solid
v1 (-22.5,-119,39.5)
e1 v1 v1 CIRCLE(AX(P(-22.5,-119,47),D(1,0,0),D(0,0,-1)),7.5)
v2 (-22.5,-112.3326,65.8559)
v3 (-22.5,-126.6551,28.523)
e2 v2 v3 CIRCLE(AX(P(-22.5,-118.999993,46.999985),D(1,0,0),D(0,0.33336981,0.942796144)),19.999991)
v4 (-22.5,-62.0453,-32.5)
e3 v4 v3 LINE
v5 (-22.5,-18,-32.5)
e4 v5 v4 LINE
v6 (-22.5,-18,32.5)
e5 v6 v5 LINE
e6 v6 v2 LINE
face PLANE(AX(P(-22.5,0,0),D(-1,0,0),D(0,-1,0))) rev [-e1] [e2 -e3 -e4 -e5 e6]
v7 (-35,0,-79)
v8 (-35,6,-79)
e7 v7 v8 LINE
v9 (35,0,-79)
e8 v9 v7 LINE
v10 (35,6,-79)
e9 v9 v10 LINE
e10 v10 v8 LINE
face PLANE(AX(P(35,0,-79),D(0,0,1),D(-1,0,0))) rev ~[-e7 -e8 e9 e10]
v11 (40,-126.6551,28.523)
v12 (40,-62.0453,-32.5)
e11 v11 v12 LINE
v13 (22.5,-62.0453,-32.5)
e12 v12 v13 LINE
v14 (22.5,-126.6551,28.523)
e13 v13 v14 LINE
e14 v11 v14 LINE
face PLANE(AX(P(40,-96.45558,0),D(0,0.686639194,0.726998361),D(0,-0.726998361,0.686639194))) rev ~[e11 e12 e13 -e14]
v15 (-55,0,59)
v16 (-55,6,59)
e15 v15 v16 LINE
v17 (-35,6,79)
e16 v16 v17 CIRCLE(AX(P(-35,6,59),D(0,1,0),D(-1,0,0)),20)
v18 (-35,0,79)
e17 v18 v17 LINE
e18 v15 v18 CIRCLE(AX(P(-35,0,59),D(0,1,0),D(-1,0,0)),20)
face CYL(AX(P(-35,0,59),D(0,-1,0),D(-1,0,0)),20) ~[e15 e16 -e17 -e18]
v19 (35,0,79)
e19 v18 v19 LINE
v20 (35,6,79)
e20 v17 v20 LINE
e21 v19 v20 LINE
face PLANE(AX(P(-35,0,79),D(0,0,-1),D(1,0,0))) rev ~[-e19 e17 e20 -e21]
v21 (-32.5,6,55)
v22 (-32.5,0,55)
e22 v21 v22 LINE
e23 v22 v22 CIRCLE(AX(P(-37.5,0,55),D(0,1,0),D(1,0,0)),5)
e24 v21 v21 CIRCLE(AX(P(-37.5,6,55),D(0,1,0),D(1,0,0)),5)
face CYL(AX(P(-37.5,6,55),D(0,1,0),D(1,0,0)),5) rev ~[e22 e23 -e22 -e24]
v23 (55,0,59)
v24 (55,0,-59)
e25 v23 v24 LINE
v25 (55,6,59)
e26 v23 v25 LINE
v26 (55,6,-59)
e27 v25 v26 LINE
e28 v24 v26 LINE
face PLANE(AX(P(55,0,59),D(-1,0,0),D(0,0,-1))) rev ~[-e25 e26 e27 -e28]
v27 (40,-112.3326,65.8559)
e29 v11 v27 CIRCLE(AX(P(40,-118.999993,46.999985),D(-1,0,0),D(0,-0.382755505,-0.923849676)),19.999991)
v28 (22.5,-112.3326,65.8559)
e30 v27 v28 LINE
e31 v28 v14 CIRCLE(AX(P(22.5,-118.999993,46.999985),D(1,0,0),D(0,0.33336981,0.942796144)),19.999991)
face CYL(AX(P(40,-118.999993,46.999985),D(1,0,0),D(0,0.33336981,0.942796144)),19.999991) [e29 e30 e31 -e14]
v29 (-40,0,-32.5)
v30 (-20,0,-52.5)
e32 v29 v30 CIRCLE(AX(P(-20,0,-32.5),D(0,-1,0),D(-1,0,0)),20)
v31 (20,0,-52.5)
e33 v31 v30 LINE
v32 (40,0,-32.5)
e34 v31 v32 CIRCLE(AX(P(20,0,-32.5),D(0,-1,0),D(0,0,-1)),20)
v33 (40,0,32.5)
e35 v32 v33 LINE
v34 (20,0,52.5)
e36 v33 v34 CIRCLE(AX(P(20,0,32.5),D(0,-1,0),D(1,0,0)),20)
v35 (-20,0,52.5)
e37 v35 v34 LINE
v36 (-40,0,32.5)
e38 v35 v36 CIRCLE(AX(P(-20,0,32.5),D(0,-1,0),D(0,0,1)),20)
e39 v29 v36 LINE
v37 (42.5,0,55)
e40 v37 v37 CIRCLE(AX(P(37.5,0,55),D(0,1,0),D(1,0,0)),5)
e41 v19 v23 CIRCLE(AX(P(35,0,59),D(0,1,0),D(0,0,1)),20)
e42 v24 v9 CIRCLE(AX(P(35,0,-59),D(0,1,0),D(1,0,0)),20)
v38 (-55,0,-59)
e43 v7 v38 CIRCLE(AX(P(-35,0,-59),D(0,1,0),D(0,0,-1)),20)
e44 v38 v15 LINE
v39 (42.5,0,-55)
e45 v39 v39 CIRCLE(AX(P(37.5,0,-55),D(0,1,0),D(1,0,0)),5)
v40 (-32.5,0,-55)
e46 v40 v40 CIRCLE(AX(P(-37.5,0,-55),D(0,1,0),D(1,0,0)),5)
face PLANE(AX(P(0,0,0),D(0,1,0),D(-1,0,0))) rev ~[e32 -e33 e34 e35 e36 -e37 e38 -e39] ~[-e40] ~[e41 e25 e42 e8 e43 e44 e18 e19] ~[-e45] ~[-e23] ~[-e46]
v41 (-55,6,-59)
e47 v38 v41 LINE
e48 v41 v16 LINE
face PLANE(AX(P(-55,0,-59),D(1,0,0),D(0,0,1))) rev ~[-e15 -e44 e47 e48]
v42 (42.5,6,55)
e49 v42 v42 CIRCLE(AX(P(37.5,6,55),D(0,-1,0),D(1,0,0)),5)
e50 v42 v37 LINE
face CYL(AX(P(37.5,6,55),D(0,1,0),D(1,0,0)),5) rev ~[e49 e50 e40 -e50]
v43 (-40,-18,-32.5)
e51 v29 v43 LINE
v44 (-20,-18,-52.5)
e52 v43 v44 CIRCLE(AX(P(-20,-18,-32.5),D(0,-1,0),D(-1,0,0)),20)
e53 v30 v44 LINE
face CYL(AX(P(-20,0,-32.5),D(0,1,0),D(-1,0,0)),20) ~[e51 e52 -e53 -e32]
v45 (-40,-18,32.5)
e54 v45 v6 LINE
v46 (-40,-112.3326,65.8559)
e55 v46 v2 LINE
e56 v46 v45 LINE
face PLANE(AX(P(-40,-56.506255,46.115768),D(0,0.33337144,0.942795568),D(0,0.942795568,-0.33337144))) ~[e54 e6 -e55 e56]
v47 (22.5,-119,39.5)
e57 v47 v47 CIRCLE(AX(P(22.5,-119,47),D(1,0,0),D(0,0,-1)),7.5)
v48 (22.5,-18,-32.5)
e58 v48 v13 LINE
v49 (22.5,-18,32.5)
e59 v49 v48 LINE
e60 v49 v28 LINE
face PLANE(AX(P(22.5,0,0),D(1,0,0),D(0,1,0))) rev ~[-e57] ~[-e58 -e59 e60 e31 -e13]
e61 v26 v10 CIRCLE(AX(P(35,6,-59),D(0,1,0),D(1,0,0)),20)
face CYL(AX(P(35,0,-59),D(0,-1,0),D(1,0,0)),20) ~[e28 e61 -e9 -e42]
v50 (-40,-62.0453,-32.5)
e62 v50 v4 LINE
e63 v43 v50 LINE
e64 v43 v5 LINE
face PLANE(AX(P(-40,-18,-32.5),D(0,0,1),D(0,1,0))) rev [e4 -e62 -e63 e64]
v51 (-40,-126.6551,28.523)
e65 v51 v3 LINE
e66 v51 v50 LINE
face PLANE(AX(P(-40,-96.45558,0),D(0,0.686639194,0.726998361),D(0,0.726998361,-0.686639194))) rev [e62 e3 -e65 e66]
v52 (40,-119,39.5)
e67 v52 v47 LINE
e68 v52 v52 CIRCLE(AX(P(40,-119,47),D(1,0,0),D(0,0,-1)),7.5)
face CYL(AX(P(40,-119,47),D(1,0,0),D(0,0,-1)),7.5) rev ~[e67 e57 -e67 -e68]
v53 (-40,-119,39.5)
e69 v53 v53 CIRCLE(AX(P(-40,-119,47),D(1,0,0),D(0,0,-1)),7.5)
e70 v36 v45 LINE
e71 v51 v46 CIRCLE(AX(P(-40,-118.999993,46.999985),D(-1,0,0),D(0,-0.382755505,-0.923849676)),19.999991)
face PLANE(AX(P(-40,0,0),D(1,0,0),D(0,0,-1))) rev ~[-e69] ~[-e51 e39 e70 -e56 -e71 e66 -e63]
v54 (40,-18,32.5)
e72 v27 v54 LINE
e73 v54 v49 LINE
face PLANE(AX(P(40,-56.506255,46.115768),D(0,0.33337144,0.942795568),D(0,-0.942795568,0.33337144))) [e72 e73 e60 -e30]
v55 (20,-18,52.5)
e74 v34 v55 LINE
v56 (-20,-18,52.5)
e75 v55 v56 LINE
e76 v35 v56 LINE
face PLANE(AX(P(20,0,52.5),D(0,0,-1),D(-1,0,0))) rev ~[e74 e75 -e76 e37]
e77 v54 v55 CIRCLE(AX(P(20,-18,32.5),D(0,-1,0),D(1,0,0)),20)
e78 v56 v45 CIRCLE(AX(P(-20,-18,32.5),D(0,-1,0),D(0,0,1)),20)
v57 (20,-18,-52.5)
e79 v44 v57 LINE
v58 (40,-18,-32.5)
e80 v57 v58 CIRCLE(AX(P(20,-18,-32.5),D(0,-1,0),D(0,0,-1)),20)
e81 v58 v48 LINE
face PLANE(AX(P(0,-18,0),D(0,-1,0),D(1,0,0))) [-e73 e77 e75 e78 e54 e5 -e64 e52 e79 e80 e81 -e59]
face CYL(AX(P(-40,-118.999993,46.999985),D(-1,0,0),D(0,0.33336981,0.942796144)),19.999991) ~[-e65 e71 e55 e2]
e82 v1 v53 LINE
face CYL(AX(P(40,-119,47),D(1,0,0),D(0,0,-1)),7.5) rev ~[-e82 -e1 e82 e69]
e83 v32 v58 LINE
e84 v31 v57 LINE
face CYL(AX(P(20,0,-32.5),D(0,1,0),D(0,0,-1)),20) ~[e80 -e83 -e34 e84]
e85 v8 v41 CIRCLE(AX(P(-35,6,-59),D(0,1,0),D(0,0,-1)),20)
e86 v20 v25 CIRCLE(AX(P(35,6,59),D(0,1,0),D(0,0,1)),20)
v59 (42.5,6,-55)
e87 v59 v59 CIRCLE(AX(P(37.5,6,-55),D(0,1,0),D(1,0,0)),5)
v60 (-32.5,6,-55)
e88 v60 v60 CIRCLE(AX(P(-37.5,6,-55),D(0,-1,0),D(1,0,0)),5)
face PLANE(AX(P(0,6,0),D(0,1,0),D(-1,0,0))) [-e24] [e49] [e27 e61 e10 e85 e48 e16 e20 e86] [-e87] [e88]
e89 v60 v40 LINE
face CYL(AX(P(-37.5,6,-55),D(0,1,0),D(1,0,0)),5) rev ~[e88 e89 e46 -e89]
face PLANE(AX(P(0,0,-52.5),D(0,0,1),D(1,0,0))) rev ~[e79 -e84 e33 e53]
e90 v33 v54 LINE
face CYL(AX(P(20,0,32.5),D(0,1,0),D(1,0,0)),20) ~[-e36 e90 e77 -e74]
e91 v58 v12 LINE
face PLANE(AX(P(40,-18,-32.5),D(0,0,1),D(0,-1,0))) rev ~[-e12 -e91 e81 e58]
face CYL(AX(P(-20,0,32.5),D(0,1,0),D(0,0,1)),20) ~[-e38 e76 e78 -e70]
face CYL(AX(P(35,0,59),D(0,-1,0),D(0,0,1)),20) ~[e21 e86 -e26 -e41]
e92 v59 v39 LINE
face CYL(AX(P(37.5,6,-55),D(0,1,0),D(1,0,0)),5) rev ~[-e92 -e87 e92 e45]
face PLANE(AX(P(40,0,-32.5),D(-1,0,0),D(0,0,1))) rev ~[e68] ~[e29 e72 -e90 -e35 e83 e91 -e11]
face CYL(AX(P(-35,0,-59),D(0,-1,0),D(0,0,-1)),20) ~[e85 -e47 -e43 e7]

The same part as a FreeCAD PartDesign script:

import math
import FreeCAD as App
import Part
import Sketcher
Q = App.Units.Quantity

doc = App.newDocument("Part")
params = doc.addObject("Spreadsheet::Sheet", "Params")
for row, (alias, value) in enumerate([
    ("sketch1_radius", "20 mm"),
    ("sketch1_height", "118 mm"),
    ("pad1_length", "6 mm"),
    ("sketch2_radius", "20 mm"),
    ("sketch2_width", "40 mm"),
    ("pad2_length", "18 mm"),
    ("sketch3_diameter", "10 mm"),
    ("pocket1_length", "6 mm"),
    ("sketch4_radius", "20 mm"),
    ("sketch4_height", "65 mm"),
    ("pad3_length", "17.5 mm"),
    ("sketch5_diameter", "15 mm"),
], start=1):
    params.set(f"A{row}", alias)
    params.set(f"B{row}", "=" + value)
    params.setAlias(f"B{row}", alias)

body = doc.addObject("PartDesign::Body", "Body")

# Sketch on XZ plane
sketch1 = doc.addObject("Sketcher::SketchObject", "Sketch")
body.addObject(sketch1)
sketch1.AttachmentSupport = (doc.XZ_Plane, [""])
sketch1.MapMode = "FlatFace"
sketch1.addGeometry([
    Part.ArcOfCircle(Part.Circle(App.Vector(35, -59, 0), App.Vector(0, 0, 1), 20), math.radians(-90), math.radians(0)),  # 0
    Part.LineSegment(App.Vector(35, -79, 0), App.Vector(-35, -79, 0)),  # 1
    Part.ArcOfCircle(Part.Circle(App.Vector(-35, -59, 0), App.Vector(0, 0, 1), 20), math.radians(180), math.radians(270)),  # 2
    Part.LineSegment(App.Vector(-55, -59, 0), App.Vector(-55, 59, 0)),  # 3
    Part.ArcOfCircle(Part.Circle(App.Vector(-35, 59, 0), App.Vector(0, 0, 1), 20), math.radians(90), math.radians(180)),  # 4
    Part.LineSegment(App.Vector(-35, 79, 0), App.Vector(35, 79, 0)),  # 5
    Part.ArcOfCircle(Part.Circle(App.Vector(35, 59, 0), App.Vector(0, 0, 1), 20), math.radians(0), math.radians(90)),  # 6
    Part.LineSegment(App.Vector(55, 59, 0), App.Vector(55, -59, 0)),  # 7
], False)
sketch1.addConstraint([
    Sketcher.Constraint("Tangent", 0, 1, 1, 1),
    Sketcher.Constraint("Tangent", 1, 2, 2, 2),
    Sketcher.Constraint("Tangent", 2, 1, 3, 1),
    Sketcher.Constraint("Tangent", 3, 2, 4, 2),
    Sketcher.Constraint("Tangent", 4, 1, 5, 1),
    Sketcher.Constraint("Tangent", 5, 2, 6, 2),
    Sketcher.Constraint("Tangent", 6, 1, 7, 1),
    Sketcher.Constraint("Tangent", 7, 2, 0, 2),
    Sketcher.Constraint("Horizontal", 1),
    Sketcher.Constraint("Vertical", 3),
    Sketcher.Constraint("Horizontal", 5),
    Sketcher.Constraint("Vertical", 7),
    Sketcher.Constraint("Equal", 0, 2),
    Sketcher.Constraint("Equal", 2, 4),
    Sketcher.Constraint("Equal", 4, 6),
    Sketcher.Constraint("Symmetric", 0, 3, 4, 3, -1, 1),
    Sketcher.Constraint("Radius", 0, Q("20 mm")),
    Sketcher.Constraint("DistanceX", 3, 2, 6, 1, Q("110 mm")),
    Sketcher.Constraint("DistanceY", 3, 1, 3, 2, Q("118 mm")),
])
sketch1.setExpression("Constraints[16]", "Params.sketch1_radius")
sketch1.setExpression("Constraints[18]", "Params.sketch1_height")
pad1 = doc.addObject("PartDesign::Pad", "Pad")
body.addObject(pad1)
pad1.Profile = sketch1
pad1.setExpression("Length", "Params.pad1_length")
pad1.Reversed = True

# Sketch on XZ plane
sketch2 = doc.addObject("Sketcher::SketchObject", "Sketch001")
body.addObject(sketch2)
sketch2.AttachmentSupport = (doc.XZ_Plane, [""])
sketch2.MapMode = "FlatFace"
sketch2.addGeometry([
    Part.LineSegment(App.Vector(40, -32.5, 0), App.Vector(40, 32.5, 0)),  # 0
    Part.ArcOfCircle(Part.Circle(App.Vector(20, 32.5, 0), App.Vector(0, 0, 1), 20), math.radians(0), math.radians(90)),  # 1
    Part.LineSegment(App.Vector(20, 52.5, 0), App.Vector(-20, 52.5, 0)),  # 2
    Part.ArcOfCircle(Part.Circle(App.Vector(-20, 32.5, 0), App.Vector(0, 0, 1), 20), math.radians(90), math.radians(180)),  # 3
    Part.LineSegment(App.Vector(-40, 32.5, 0), App.Vector(-40, -32.5, 0)),  # 4
    Part.ArcOfCircle(Part.Circle(App.Vector(-20, -32.5, 0), App.Vector(0, 0, 1), 20), math.radians(180), math.radians(270)),  # 5
    Part.LineSegment(App.Vector(-20, -52.5, 0), App.Vector(20, -52.5, 0)),  # 6
    Part.ArcOfCircle(Part.Circle(App.Vector(20, -32.5, 0), App.Vector(0, 0, 1), 20), math.radians(-90), math.radians(0)),  # 7
], False)
sketch2.addConstraint([
    Sketcher.Constraint("Tangent", 0, 2, 1, 1),
    Sketcher.Constraint("Tangent", 1, 2, 2, 1),
    Sketcher.Constraint("Tangent", 2, 2, 3, 1),
    Sketcher.Constraint("Tangent", 3, 2, 4, 1),
    Sketcher.Constraint("Tangent", 4, 2, 5, 1),
    Sketcher.Constraint("Tangent", 5, 2, 6, 1),
    Sketcher.Constraint("Tangent", 6, 2, 7, 1),
    Sketcher.Constraint("Tangent", 7, 2, 0, 1),
    Sketcher.Constraint("Vertical", 0),
    Sketcher.Constraint("Horizontal", 2),
    Sketcher.Constraint("Vertical", 4),
    Sketcher.Constraint("Horizontal", 6),
    Sketcher.Constraint("Equal", 1, 3),
    Sketcher.Constraint("Equal", 3, 5),
    Sketcher.Constraint("Equal", 5, 7),
    Sketcher.Constraint("Symmetric", 1, 3, 5, 3, -1, 1),
    Sketcher.Constraint("Radius", 1, Q("20 mm")),
    Sketcher.Constraint("DistanceX", 2, 2, 2, 1, Q("40 mm")),
    Sketcher.Constraint("DistanceY", -1, 1, 1, 2, Q("52.5 mm")),
])
sketch2.setExpression("Constraints[16]", "Params.sketch2_radius")
sketch2.setExpression("Constraints[17]", "Params.sketch2_width")
pad2 = doc.addObject("PartDesign::Pad", "Pad001")
body.addObject(pad2)
pad2.Profile = sketch2
pad2.setExpression("Length", "Params.pad2_length")

# Sketch on XZ plane
sketch3 = doc.addObject("Sketcher::SketchObject", "Sketch002")
body.addObject(sketch3)
sketch3.AttachmentSupport = (doc.XZ_Plane, [""])
sketch3.MapMode = "FlatFace"
sketch3.AttachmentOffset = App.Placement(App.Vector(0, 0, -6), App.Rotation())
sketch3.addGeometry([
    Part.Circle(App.Vector(-37.5, 55, 0), App.Vector(0, 0, 1), 5),
    Part.Circle(App.Vector(37.5, 55, 0), App.Vector(0, 0, 1), 5),
    Part.Circle(App.Vector(-37.5, -55, 0), App.Vector(0, 0, 1), 5),
    Part.Circle(App.Vector(37.5, -55, 0), App.Vector(0, 0, 1), 5),
], False)
sketch3.addConstraint([
    Sketcher.Constraint("Equal", 0, 1),
    Sketcher.Constraint("Equal", 1, 2),
    Sketcher.Constraint("Equal", 2, 3),
    Sketcher.Constraint("Symmetric", 1, 3, 2, 3, -1, 1),
    Sketcher.Constraint("Symmetric", 0, 3, 3, 3, -1, 1),
    Sketcher.Constraint("Symmetric", 0, 3, 1, 3, -2),
    Sketcher.Constraint("Diameter", 0, Q("10 mm")),
    Sketcher.Constraint("DistanceY", -1, 1, 0, 3, Q("55 mm")),
    Sketcher.Constraint("DistanceX", 0, 3, -1, 1, Q("37.5 mm")),
])
sketch3.setExpression("Constraints[6]", "Params.sketch3_diameter")
pocket1 = doc.addObject("PartDesign::Pocket", "Pocket")
body.addObject(pocket1)
pocket1.Profile = sketch3
pocket1.setExpression("Length", "Params.pocket1_length")
pocket1.Reversed = True

# Sketch on YZ plane
sketch4 = doc.addObject("Sketcher::SketchObject", "Sketch003")
body.addObject(sketch4)
sketch4.AttachmentSupport = (doc.YZ_Plane, [""])
sketch4.MapMode = "FlatFace"
sketch4.AttachmentOffset = App.Placement(App.Vector(0, 0, 40), App.Rotation())
sketch4.addGeometry([
    Part.ArcOfCircle(Part.Circle(App.Vector(-119, 47, 0), App.Vector(0, 0, 1), 19.99998), math.radians(70.52653), math.radians(247.495564)),  # 0
    Part.LineSegment(App.Vector(-126.6551, 28.523, 0), App.Vector(-62.0453, -32.5, 0)),  # 1
    Part.LineSegment(App.Vector(-62.0453, -32.5, 0), App.Vector(-18, -32.5, 0)),  # 2
    Part.LineSegment(App.Vector(-18, -32.5, 0), App.Vector(-18, 32.5, 0)),  # 3
    Part.LineSegment(App.Vector(-18, 32.5, 0), App.Vector(-112.3326, 65.8559, 0)),  # 4
], False)
sketch4.addConstraint([
    Sketcher.Constraint("Coincident", 0, 2, 1, 1),
    Sketcher.Constraint("Coincident", 1, 2, 2, 1),
    Sketcher.Constraint("Coincident", 2, 2, 3, 1),
    Sketcher.Constraint("Coincident", 3, 2, 4, 1),
    Sketcher.Constraint("Tangent", 4, 2, 0, 1),
    Sketcher.Constraint("Horizontal", 2),
    Sketcher.Constraint("Vertical", 3),
    Sketcher.Constraint("Radius", 0, Q("20 mm")),
    Sketcher.Constraint("DistanceY", -1, 1, 0, 3, Q("47 mm")),
    Sketcher.Constraint("DistanceY", 3, 1, 3, 2, Q("65 mm")),
    Sketcher.Constraint("DistanceX", 0, 3, -1, 1, Q("119 mm")),
    Sketcher.Constraint("DistanceX", 2, 2, -1, 1, Q("18 mm")),
    Sketcher.Constraint("DistanceY", 1, 2, -1, 1, Q("32.5 mm")),
    Sketcher.Constraint("Distance", 1, Q("88.872 mm")),
    Sketcher.Constraint("DistanceX", 2, 1, 2, 2, Q("44.0453 mm")),
])
sketch4.setExpression("Constraints[7]", "Params.sketch4_radius")
sketch4.setExpression("Constraints[9]", "Params.sketch4_height")
pad3 = doc.addObject("PartDesign::Pad", "Pad002")
body.addObject(pad3)
pad3.Profile = sketch4
pad3.setExpression("Length", "Params.pad3_length")
pad3.Reversed = True
doc.recompute()

mirrored = doc.addObject("PartDesign::Mirrored", "Mirrored")
body.addObject(mirrored)
mirrored.Originals = [pad3]
mirrored.MirrorPlane = (doc.YZ_Plane, [""])
body.Tip = mirrored

# Sketch on YZ plane
sketch5 = doc.addObject("Sketcher::SketchObject", "Sketch004")
body.addObject(sketch5)
sketch5.AttachmentSupport = (doc.YZ_Plane, [""])
sketch5.MapMode = "FlatFace"
sketch5.AttachmentOffset = App.Placement(App.Vector(0, 0, 40), App.Rotation())
sketch5.addGeometry(Part.Circle(App.Vector(-119, 47, 0), App.Vector(0, 0, 1), 7.5), False)
sketch5.addConstraint([
    Sketcher.Constraint("Diameter", 0, Q("15 mm")),
    Sketcher.Constraint("DistanceX", 0, 3, -1, 1, Q("119 mm")),
    Sketcher.Constraint("DistanceY", -1, 1, 0, 3, Q("47 mm")),
])
sketch5.setExpression("Constraints[0]", "Params.sketch5_diameter")
pocket2 = doc.addObject("PartDesign::Pocket", "Pocket001")
body.addObject(pocket2)
pocket2.Profile = sketch5
pocket2.Type = "ThroughAll"

doc.recompute()
